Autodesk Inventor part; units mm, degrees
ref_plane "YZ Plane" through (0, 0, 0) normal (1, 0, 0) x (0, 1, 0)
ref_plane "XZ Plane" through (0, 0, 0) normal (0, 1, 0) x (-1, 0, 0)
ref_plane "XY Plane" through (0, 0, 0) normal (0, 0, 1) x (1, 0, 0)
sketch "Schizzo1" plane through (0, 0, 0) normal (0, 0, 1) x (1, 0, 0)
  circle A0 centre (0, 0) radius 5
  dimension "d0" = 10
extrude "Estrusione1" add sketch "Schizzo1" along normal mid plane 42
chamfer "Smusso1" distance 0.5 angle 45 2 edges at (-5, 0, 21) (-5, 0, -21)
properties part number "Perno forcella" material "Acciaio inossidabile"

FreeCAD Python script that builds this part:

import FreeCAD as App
import Part
import Sketcher
from FreeCAD import Vector
Q = App.Units.Quantity


def edges_at(feature, points):
    """Names of the edges that pass closest to the given points."""
    edges = feature.Shape.Edges
    near = lambda p: min(range(len(edges)), key=lambda i: edges[i].distToShape(Part.Vertex(*p))[0])
    return sorted({f"Edge{near(p) + 1}" for p in points})

doc = App.newDocument("Part")
params = doc.addObject("Spreadsheet::Sheet", "Params")
for row, (alias, value) in enumerate([
    ("sketch1_diameter", "10 mm"),
    ("pad1_length", "42 mm"),
    ("chamfer_size", "0.5 mm"),
], start=1):
    params.set(f"A{row}", alias)
    params.set(f"B{row}", "=" + value)
    params.setAlias(f"B{row}", alias)

body = doc.addObject("PartDesign::Body", "Body")

# Sketch on XY plane
sketch1 = body.newObject("Sketcher::SketchObject", "Sketch")
sketch1.AttachmentSupport = (doc.getObject("XY_Plane"), [""])
sketch1.MapMode = "FlatFace"
sketch1.addGeometry(Part.Circle(Vector(0, 0, 0), Vector(0, 0, 1), 5), False)
sketch1.addConstraint(Sketcher.Constraint("Coincident", 0, 3, -1, 1))
sketch1.addConstraint(Sketcher.Constraint("Diameter", 0, Q("10 mm")))
sketch1.setExpression("Constraints[1]", "Params.sketch1_diameter")
pad1 = body.newObject("PartDesign::Pad", "Pad")
pad1.Profile = sketch1
pad1.setExpression("Length", "Params.pad1_length")
pad1.Midplane = True
doc.recompute()

chamfer = body.newObject("PartDesign::Chamfer", "Chamfer")
chamfer.Base = (pad1, edges_at(pad1, [(-5, 0, 21), (-5, 0, -21)]))
chamfer.setExpression("Size", "Params.chamfer_size")

doc.recompute()
